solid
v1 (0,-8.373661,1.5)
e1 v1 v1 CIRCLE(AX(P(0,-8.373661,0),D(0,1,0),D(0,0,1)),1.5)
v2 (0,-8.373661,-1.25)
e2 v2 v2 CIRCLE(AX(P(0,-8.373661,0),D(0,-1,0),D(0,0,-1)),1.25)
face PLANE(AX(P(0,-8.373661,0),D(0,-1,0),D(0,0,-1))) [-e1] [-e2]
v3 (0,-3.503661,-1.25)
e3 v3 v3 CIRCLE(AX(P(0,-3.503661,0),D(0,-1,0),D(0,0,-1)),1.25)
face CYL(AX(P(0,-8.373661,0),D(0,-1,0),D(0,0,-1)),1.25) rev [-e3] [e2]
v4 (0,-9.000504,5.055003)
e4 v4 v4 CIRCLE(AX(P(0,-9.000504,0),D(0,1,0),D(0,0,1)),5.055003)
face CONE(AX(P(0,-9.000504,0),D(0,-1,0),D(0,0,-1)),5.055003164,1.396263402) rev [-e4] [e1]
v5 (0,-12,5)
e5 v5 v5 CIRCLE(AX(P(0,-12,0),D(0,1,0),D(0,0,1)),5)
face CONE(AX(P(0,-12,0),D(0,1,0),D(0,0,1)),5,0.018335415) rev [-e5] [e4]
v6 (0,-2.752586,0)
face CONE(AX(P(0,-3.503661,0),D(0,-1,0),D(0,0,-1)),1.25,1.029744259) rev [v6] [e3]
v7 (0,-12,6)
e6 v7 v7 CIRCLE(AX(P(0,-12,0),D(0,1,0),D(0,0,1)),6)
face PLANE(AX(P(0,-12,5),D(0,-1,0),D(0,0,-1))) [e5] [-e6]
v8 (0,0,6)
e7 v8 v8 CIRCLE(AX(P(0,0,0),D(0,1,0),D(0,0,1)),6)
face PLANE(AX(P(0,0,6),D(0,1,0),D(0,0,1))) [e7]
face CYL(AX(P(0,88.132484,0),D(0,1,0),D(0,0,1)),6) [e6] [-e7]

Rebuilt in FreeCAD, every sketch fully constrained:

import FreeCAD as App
import Part
import Sketcher
Q = App.Units.Quantity

doc = App.newDocument("Part")
body = doc.addObject("PartDesign::Body", "Body")

sketch1 = body.newObject("Sketcher::SketchObject", "Sketch")
sketch1.AttachmentSupport = (doc.getObject("YZ_Plane"), [""])
sketch1.MapMode = "FlatFace"
sketch1.addGeometry([
    Part.LineSegment(App.Vector(-12, 6, 0), App.Vector(-12, 5, 0)),
    Part.LineSegment(App.Vector(-12, 5, 0), App.Vector(-9, 5.1, 0)),
    Part.LineSegment(App.Vector(-9, 5.1, 0), App.Vector(-8.4, 1.5, 0)),
    Part.LineSegment(App.Vector(-8.4, 1.5, 0), App.Vector(-8.4, 0, 0)),
    Part.LineSegment(App.Vector(-8.4, 0, 0), App.Vector(0, 0, 0)),
    Part.LineSegment(App.Vector(0, 0, 0), App.Vector(0, 6, 0)),
    Part.LineSegment(App.Vector(0, 6, 0), App.Vector(-12, 6, 0)),
], False)
sketch1.addConstraint([
    Sketcher.Constraint("Coincident", 0, 2, 1, 1),
    Sketcher.Constraint("Coincident", 1, 2, 2, 1),
    Sketcher.Constraint("Coincident", 2, 2, 3, 1),
    Sketcher.Constraint("Coincident", 3, 2, 4, 1),
    Sketcher.Constraint("Coincident", 4, 2, 5, 1),
    Sketcher.Constraint("Coincident", 5, 2, 6, 1),
    Sketcher.Constraint("Coincident", 6, 2, 0, 1),
    Sketcher.Constraint("Vertical", 0),
    Sketcher.Constraint("Vertical", 3),
    Sketcher.Constraint("Horizontal", 4),
    Sketcher.Constraint("Vertical", 5),
    Sketcher.Constraint("Horizontal", 6),
    Sketcher.Constraint("Coincident", 4, 2, -1, 1),
    Sketcher.Constraint("DistanceX", 6, 2, 6, 1, 12.0),
    Sketcher.Constraint("DistanceY", 0, 2, 0, 1, 1.0),
    Sketcher.Constraint("DistanceY", 5, 1, 5, 2, 6.0),
    Sketcher.Constraint("Angle", 2, Q("-80 deg")),
    Sketcher.Constraint("Distance", 1, 3.0),
    Sketcher.Constraint("DistanceY", 3, 2, 3, 1, 1.5),
    Sketcher.Constraint("DistanceX", 4, 1, 4, 2, 8.373661),
])
revolution = body.newObject("PartDesign::Revolution", "Revolution")
revolution.Profile = sketch1
revolution.ReferenceAxis = (sketch1, ["H_Axis"])
revolution.Angle = 360

sketch2 = body.newObject("Sketcher::SketchObject", "Sketch001")
sketch2.AttachmentSupport = (doc.getObject("XZ_Plane"), [""])
sketch2.MapMode = "FlatFace"
sketch2.AttachmentOffset = App.Placement(App.Vector(0, 0, 8.373661), App.Rotation())
sketch2.addGeometry(Part.Circle(App.Vector(0, 0, 0), App.Vector(0, 0, 1), 1.2), False)
sketch2.addConstraint([
    Sketcher.Constraint("Coincident", 0, 3, -1, 1),
    Sketcher.Constraint("Diameter", 0, 2.5),
])
doc.recompute()
hole = body.newObject("PartDesign::Hole", "Hole")
hole.Profile = sketch2
hole.ThreadType = "None"
hole.Diameter = 2.5
hole.DepthType = "Dimension"
hole.Depth = 4.87
hole.DrillPoint = "Angled"
hole.DrillPointAngle = 118

doc.recompute()
